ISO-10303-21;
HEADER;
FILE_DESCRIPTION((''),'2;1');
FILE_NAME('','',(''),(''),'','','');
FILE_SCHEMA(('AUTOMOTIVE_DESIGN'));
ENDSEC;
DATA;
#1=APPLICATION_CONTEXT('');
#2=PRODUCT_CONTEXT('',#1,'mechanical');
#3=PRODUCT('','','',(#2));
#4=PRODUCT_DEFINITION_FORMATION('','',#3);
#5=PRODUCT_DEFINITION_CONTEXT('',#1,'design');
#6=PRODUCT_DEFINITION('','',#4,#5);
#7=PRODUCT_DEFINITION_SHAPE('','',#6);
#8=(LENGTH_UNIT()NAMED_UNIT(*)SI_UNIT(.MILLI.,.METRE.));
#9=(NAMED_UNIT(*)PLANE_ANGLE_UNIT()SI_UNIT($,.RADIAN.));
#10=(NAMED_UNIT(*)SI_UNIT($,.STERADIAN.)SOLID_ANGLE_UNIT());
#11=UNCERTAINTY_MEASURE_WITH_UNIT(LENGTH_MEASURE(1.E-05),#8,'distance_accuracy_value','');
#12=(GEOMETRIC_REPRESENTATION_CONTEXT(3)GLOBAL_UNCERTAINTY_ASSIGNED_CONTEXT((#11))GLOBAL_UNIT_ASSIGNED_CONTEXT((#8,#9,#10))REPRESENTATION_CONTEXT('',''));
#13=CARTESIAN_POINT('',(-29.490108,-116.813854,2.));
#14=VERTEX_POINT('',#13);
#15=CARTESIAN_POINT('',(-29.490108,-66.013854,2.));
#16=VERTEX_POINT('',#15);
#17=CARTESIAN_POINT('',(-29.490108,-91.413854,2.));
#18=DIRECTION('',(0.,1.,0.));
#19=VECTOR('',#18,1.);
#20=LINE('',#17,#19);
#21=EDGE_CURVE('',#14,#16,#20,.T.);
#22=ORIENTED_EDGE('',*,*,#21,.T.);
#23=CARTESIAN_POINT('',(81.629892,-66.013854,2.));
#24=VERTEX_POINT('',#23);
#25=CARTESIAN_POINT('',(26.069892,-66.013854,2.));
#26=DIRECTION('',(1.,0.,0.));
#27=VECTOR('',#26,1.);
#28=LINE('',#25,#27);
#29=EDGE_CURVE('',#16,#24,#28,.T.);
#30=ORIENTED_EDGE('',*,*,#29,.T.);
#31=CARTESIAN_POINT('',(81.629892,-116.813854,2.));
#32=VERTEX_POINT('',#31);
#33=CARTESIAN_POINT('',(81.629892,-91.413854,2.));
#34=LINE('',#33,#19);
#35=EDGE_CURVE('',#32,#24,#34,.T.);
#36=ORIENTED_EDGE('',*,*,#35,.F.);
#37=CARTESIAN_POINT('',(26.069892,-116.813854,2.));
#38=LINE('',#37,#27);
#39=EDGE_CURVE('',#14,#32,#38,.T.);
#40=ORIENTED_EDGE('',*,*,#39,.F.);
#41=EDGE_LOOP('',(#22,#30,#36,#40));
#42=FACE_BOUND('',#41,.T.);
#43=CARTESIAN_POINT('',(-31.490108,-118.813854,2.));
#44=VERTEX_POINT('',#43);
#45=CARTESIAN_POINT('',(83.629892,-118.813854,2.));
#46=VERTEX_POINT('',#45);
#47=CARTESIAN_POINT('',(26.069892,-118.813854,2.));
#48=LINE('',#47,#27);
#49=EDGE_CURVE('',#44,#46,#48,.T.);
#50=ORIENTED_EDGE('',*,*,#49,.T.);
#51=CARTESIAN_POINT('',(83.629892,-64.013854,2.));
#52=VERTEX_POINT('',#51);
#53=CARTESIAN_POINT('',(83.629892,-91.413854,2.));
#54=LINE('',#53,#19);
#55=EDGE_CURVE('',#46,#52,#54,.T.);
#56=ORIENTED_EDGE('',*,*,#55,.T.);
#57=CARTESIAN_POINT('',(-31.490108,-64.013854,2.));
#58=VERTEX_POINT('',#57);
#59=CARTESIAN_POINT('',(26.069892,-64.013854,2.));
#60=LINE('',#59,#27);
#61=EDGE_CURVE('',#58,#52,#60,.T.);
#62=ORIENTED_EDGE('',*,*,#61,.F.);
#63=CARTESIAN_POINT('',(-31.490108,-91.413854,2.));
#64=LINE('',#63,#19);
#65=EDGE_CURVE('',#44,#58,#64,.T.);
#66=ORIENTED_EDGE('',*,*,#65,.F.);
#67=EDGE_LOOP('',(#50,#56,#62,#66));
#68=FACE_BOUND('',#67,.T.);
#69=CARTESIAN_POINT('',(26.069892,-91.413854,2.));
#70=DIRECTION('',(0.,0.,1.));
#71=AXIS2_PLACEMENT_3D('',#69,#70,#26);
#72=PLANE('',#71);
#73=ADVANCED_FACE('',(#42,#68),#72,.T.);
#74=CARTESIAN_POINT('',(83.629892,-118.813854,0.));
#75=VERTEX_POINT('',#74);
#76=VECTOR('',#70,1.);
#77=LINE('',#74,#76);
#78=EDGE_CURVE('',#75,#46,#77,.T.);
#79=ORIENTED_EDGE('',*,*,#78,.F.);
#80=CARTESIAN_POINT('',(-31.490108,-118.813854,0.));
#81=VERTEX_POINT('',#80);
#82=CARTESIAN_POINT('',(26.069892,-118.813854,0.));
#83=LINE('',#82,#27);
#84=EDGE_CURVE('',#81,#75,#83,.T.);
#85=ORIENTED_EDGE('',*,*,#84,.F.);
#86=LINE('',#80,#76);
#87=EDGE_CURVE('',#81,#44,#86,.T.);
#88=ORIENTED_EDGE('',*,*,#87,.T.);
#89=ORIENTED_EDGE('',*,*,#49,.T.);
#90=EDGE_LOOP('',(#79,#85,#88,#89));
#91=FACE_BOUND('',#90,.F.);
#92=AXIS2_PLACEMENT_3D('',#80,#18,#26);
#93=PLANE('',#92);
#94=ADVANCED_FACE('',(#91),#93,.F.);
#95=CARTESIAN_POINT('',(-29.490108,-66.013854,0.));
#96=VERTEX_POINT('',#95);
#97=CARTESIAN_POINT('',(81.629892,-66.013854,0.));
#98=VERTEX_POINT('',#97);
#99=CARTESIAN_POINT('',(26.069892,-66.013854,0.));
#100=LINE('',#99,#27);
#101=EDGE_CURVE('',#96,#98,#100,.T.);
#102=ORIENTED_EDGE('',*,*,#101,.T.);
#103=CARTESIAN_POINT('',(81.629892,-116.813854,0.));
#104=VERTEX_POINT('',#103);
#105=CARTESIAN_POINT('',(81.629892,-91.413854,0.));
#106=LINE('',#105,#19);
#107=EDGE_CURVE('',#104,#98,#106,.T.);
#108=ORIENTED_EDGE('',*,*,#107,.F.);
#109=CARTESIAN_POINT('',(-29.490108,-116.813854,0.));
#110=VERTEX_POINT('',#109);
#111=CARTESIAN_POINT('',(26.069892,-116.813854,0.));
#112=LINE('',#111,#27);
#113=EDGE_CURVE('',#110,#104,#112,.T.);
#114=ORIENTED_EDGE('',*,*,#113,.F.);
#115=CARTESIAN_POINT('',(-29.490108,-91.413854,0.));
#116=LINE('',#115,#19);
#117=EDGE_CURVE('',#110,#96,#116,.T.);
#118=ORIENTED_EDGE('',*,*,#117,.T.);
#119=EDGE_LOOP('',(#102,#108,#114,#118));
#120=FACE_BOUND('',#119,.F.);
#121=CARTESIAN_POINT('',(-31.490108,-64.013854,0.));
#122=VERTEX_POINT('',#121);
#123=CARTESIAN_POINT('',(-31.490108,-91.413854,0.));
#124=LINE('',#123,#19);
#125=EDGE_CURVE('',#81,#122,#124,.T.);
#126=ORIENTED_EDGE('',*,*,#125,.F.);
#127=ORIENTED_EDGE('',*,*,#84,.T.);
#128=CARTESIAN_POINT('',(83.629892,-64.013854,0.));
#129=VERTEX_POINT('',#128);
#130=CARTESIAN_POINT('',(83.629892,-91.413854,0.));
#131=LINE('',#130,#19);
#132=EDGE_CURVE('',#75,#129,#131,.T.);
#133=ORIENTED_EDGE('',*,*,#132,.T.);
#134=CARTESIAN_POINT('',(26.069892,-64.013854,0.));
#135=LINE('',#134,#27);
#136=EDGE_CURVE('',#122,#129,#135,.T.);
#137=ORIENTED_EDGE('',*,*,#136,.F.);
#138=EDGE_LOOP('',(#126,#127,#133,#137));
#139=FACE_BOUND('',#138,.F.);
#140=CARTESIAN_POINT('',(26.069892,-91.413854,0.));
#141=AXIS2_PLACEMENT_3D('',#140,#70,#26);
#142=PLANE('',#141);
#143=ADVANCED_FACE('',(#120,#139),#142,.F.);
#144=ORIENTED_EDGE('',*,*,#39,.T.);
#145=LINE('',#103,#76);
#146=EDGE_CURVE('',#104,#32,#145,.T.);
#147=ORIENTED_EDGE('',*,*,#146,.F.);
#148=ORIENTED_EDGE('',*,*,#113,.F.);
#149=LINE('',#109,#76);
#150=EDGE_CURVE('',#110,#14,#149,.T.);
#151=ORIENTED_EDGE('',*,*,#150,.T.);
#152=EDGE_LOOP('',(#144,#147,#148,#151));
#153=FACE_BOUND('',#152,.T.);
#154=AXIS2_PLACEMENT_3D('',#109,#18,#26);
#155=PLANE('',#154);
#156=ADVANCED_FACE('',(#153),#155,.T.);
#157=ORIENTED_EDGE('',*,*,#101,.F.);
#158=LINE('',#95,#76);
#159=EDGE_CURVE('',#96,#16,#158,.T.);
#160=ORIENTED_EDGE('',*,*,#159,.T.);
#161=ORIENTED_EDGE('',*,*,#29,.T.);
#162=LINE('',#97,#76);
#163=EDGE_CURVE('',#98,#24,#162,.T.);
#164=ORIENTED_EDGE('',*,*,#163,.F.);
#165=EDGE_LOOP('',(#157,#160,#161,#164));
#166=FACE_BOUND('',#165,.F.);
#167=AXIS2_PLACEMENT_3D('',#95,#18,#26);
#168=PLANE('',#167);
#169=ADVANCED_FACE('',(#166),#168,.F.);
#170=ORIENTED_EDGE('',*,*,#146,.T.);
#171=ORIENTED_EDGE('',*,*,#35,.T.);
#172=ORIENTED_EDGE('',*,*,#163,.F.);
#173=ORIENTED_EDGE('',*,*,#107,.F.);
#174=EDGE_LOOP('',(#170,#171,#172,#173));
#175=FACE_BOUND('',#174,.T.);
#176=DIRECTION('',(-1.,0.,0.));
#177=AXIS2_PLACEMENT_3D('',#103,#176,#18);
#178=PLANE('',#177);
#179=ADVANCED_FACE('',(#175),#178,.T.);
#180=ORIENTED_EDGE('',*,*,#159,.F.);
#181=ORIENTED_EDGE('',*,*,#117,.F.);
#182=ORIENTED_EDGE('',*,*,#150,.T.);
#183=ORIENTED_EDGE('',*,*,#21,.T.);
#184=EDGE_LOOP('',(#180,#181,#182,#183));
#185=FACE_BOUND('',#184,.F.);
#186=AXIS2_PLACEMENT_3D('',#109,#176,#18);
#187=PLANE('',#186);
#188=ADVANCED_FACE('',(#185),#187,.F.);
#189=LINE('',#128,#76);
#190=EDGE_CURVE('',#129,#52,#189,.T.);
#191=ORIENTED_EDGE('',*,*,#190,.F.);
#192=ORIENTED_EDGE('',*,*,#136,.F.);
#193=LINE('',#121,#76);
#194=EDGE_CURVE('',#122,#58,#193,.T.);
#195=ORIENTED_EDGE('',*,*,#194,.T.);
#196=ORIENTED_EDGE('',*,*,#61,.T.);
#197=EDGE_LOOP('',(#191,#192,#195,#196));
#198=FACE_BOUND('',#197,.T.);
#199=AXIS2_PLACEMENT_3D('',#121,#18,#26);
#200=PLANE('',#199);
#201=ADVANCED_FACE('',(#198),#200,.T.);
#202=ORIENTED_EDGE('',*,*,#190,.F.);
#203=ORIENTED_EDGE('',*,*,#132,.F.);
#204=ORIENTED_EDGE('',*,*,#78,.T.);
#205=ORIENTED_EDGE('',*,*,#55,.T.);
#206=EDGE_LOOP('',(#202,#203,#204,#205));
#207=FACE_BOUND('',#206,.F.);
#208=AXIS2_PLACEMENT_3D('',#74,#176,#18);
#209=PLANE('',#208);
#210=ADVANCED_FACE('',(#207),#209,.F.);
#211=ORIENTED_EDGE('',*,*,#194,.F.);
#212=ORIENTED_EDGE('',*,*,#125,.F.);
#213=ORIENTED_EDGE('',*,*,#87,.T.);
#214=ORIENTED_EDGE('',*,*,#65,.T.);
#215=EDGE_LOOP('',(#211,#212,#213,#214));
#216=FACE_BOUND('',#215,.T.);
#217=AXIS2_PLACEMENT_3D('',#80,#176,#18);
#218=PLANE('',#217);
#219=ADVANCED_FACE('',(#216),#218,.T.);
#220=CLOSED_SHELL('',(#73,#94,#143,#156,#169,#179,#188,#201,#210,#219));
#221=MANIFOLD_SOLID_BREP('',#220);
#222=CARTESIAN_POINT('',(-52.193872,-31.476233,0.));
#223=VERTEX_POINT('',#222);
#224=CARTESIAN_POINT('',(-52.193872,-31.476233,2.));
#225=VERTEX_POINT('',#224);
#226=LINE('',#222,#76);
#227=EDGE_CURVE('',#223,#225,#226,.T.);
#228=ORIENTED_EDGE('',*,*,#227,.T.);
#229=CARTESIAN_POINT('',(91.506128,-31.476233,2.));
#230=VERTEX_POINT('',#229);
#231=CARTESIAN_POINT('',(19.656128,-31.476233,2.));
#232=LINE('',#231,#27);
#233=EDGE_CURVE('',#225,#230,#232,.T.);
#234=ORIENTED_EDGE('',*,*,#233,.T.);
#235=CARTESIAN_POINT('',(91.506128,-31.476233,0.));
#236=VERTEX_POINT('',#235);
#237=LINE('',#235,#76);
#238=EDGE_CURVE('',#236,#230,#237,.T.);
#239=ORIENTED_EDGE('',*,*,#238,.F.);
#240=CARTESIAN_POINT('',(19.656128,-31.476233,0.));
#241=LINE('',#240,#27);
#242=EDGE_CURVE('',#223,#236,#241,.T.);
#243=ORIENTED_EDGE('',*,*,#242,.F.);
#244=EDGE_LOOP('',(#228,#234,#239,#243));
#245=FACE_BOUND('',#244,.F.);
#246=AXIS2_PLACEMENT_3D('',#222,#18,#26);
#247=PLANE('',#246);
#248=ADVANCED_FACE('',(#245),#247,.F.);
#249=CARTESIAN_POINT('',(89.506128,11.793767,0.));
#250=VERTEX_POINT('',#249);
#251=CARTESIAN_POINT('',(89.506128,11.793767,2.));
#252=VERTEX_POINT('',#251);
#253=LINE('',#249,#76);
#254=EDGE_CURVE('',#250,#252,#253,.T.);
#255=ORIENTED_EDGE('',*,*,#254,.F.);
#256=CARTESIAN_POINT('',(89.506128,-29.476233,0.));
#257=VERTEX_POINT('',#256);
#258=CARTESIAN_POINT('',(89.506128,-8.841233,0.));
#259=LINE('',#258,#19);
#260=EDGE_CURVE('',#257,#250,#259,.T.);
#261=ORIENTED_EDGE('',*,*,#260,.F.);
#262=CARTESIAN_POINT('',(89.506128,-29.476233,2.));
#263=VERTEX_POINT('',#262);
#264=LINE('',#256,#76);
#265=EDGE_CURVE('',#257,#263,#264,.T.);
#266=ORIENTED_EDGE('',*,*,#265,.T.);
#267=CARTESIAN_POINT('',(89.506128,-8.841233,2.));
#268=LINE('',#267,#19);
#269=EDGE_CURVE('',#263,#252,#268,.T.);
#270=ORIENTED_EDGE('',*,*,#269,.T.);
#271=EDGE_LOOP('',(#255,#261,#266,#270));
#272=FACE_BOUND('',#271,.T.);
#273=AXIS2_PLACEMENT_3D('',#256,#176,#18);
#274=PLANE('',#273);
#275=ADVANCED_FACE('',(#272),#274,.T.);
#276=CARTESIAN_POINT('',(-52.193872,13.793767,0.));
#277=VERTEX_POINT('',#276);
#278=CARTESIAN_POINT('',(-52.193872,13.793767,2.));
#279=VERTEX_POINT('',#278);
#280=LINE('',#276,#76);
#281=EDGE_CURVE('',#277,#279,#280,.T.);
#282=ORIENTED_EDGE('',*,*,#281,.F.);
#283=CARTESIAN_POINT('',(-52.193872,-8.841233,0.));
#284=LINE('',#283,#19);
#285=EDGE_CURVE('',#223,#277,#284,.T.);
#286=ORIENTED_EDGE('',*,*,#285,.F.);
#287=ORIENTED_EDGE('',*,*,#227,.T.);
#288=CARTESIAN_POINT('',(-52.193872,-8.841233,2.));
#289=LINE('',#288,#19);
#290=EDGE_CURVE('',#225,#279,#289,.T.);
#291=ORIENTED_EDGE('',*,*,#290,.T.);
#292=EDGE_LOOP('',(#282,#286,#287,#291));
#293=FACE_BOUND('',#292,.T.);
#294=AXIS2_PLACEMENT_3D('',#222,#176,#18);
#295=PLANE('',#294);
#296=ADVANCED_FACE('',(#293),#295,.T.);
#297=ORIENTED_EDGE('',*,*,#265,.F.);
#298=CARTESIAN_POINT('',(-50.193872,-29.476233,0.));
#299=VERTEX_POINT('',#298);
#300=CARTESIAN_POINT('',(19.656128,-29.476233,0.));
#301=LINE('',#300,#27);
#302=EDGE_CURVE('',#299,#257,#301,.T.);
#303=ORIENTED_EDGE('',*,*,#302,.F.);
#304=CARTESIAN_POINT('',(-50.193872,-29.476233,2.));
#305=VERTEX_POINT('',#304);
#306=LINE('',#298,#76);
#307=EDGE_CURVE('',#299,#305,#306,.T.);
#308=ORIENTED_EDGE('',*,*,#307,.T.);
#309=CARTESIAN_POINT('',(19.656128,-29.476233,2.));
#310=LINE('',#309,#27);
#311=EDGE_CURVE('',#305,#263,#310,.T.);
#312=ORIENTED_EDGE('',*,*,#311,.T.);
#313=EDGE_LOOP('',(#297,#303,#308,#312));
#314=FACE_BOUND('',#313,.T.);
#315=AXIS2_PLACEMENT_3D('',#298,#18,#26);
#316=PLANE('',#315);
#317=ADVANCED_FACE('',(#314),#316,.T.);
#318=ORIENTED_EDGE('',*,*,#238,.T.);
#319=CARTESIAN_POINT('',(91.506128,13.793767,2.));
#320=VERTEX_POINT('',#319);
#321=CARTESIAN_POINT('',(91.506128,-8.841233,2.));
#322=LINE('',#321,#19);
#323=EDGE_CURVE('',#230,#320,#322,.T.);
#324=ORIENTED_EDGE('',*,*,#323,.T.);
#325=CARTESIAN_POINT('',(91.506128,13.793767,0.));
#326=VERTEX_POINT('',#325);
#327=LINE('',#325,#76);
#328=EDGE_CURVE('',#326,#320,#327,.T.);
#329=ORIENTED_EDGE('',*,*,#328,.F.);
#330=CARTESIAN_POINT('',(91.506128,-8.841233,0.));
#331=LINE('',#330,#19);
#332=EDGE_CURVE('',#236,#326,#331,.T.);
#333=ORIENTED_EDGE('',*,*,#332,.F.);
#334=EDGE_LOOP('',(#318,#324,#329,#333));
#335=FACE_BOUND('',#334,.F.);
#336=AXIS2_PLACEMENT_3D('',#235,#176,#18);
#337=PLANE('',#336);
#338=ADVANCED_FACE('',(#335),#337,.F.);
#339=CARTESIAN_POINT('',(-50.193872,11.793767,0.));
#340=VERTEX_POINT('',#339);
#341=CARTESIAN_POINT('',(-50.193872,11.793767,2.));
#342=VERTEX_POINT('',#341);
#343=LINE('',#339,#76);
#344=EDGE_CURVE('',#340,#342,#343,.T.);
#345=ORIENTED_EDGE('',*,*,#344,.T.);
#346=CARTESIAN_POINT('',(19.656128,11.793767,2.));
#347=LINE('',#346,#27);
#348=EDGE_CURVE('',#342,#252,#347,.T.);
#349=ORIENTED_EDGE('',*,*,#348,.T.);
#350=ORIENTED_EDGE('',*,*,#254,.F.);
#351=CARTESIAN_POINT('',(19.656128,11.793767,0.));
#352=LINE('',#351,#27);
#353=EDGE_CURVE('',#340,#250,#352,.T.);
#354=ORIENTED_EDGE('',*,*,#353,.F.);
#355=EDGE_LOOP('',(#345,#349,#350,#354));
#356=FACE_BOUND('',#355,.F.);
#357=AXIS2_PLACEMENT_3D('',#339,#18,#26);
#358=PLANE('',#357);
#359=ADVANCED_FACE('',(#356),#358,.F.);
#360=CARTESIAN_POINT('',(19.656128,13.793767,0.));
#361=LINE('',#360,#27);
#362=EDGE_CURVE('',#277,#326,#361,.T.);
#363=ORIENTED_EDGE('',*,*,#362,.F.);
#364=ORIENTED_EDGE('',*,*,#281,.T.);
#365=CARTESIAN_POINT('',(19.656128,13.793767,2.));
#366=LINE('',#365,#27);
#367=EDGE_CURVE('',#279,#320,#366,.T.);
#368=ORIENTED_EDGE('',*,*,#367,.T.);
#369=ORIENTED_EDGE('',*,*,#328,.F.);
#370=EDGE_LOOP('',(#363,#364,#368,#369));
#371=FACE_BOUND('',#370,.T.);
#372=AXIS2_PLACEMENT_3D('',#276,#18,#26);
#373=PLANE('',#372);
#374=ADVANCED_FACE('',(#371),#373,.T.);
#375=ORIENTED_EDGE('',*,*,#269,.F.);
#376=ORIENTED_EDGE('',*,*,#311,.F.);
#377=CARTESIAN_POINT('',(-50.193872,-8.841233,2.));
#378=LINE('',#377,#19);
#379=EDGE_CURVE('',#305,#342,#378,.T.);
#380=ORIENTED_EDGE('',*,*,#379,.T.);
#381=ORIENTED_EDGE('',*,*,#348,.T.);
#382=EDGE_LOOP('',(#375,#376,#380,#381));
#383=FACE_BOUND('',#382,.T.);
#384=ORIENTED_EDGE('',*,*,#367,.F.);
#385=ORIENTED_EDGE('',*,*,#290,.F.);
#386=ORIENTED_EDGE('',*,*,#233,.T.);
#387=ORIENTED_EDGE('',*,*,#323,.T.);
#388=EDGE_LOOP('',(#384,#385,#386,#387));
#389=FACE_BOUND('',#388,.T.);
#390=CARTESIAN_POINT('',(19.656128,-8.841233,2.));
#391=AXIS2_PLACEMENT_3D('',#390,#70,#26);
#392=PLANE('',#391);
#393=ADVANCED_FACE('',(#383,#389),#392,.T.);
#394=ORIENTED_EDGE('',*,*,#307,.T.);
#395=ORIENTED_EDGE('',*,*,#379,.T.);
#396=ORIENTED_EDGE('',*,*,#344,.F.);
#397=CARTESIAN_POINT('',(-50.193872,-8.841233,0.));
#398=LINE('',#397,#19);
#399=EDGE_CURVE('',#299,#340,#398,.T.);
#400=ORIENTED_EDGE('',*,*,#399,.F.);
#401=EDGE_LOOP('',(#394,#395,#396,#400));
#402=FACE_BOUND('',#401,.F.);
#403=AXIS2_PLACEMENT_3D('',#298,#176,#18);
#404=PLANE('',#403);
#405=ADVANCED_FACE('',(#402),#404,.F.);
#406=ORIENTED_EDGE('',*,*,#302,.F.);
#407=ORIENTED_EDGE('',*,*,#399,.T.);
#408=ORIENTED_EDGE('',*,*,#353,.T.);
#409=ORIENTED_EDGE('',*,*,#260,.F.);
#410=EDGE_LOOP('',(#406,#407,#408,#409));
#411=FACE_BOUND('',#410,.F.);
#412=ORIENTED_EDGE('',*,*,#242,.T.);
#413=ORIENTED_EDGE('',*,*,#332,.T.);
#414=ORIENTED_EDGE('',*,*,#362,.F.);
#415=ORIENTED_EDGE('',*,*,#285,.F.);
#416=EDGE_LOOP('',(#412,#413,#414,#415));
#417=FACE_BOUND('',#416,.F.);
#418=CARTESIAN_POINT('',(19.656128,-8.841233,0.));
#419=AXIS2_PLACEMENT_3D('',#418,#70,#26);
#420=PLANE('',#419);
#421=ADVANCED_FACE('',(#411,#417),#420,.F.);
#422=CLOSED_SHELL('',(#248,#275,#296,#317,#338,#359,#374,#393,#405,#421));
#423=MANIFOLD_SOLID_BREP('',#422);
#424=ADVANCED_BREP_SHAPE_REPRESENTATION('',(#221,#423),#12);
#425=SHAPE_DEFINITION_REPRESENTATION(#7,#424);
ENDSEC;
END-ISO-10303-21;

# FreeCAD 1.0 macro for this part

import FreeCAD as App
import Part
import Sketcher

V = App.Vector
Q = App.Units.Quantity


def add_polygon(sketch, points):
    """Adds a closed chain of lines whose ends are joined by coincident constraints."""
    first, n = sketch.GeometryCount, len(points)
    for a, b in zip(points, points[1:] + points[:1]):
        sketch.addGeometry(Part.LineSegment(App.Vector(*a, 0), App.Vector(*b, 0)), False)
    for i in range(n):
        sketch.addConstraint(Sketcher.Constraint("Coincident", first + i, 2, first + (i + 1) % n, 1))

doc = App.newDocument("Part")
body = doc.addObject("PartDesign::Body", "Body")

# Sketch on XY plane
sketch1 = body.newObject("Sketcher::SketchObject", "Sketch")
sketch1.AttachmentSupport = (doc.getObject("XY_Plane"), [""])
sketch1.MapMode = "FlatFace"
add_polygon(sketch1, [(-52, 14), (-52, -31), (92, -31), (92, 14)])  # lines 0-3
add_polygon(sketch1, [(90, -29), (-50, -29), (-50, 12), (90, 12)])  # lines 4-7
sketch1.addConstraint(Sketcher.Constraint("Vertical", 0))
sketch1.addConstraint(Sketcher.Constraint("Horizontal", 1))
sketch1.addConstraint(Sketcher.Constraint("Vertical", 2))
sketch1.addConstraint(Sketcher.Constraint("Horizontal", 3))
sketch1.addConstraint(Sketcher.Constraint("Horizontal", 4))
sketch1.addConstraint(Sketcher.Constraint("Vertical", 5))
sketch1.addConstraint(Sketcher.Constraint("Horizontal", 6))
sketch1.addConstraint(Sketcher.Constraint("Vertical", 7))
sketch1.addConstraint(Sketcher.Constraint("DistanceX", 1, 1, 1, 2, Q("143.7 mm")))
sketch1.addConstraint(Sketcher.Constraint("DistanceX", 4, 2, 4, 1, Q("139.7 mm")))
sketch1.addConstraint(Sketcher.Constraint("DistanceX", 0, 2, 4, 2, Q("2 mm")))
sketch1.addConstraint(Sketcher.Constraint("DistanceY", 0, 2, 4, 2, Q("2 mm")))
sketch1.addConstraint(Sketcher.Constraint("DistanceY", 5, 2, 3, 2, Q("2 mm")))
sketch1.addConstraint(Sketcher.Constraint("DistanceY", 0, 2, 0, 1, Q("45.27 mm")))
sketch1.addConstraint(Sketcher.Constraint("DistanceX", -1, 1, 1, 2, Q("91.506128 mm")))
sketch1.addConstraint(Sketcher.Constraint("DistanceY", 0, 2, -1, 1, Q("31.476233 mm")))
pad1 = body.newObject("PartDesign::Pad", "Pad")
pad1.Profile = sketch1
pad1.Length = 2
body2 = doc.addObject("PartDesign::Body", "Body001")

# Sketch on XY plane
sketch2 = body2.newObject("Sketcher::SketchObject", "Sketch001")
sketch2.AttachmentSupport = (doc.getObject("XY_Plane001"), [""])
sketch2.MapMode = "FlatFace"
add_polygon(sketch2, [(-31, -64), (-31, -119), (84, -119), (84, -64)])  # lines 0-3
add_polygon(sketch2, [(82, -117), (-29, -117), (-29, -66), (82, -66)])  # lines 4-7
sketch2.addConstraint(Sketcher.Constraint("Vertical", 0))
sketch2.addConstraint(Sketcher.Constraint("Horizontal", 1))
sketch2.addConstraint(Sketcher.Constraint("Vertical", 2))
sketch2.addConstraint(Sketcher.Constraint("Horizontal", 3))
sketch2.addConstraint(Sketcher.Constraint("Horizontal", 4))
sketch2.addConstraint(Sketcher.Constraint("Vertical", 5))
sketch2.addConstraint(Sketcher.Constraint("Horizontal", 6))
sketch2.addConstraint(Sketcher.Constraint("Vertical", 7))
sketch2.addConstraint(Sketcher.Constraint("DistanceY", 0, 2, 0, 1, Q("54.8 mm")))
sketch2.addConstraint(Sketcher.Constraint("DistanceY", 5, 1, 5, 2, Q("50.8 mm")))
sketch2.addConstraint(Sketcher.Constraint("DistanceX", 0, 2, 4, 2, Q("2 mm")))
sketch2.addConstraint(Sketcher.Constraint("DistanceY", 0, 2, 4, 2, Q("2 mm")))
sketch2.addConstraint(Sketcher.Constraint("DistanceX", 6, 2, 2, 2, Q("2 mm")))
sketch2.addConstraint(Sketcher.Constraint("DistanceX", 1, 1, 1, 2, Q("115.12 mm")))
sketch2.addConstraint(Sketcher.Constraint("DistanceX", -1, 1, 1, 2, Q("83.629892 mm")))
sketch2.addConstraint(Sketcher.Constraint("DistanceY", 0, 2, -1, 1, Q("118.813854 mm")))
pad2 = body2.newObject("PartDesign::Pad", "Pad001")
pad2.Profile = sketch2
pad2.Length = 2

doc.recompute()
